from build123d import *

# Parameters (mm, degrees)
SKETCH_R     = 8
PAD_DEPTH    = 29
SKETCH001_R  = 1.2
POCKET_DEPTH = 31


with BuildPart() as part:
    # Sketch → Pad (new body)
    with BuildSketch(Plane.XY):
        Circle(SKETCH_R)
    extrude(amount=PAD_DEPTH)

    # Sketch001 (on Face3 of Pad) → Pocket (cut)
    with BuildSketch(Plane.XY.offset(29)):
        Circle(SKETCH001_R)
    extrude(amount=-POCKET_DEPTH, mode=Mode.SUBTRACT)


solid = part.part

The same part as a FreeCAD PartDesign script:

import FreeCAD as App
import Part
import Sketcher

doc = App.newDocument("Part")
body = doc.addObject("PartDesign::Body", "Body")

sketch1 = body.newObject("Sketcher::SketchObject", "Sketch")
sketch1.AttachmentSupport = (doc.getObject("XY_Plane"), [""])
sketch1.MapMode = "FlatFace"
sketch1.addGeometry(Part.Circle(App.Vector(0, 0, 0), App.Vector(0, 0, 1), 8), False)
sketch1.addConstraint([
    Sketcher.Constraint("Coincident", 0, 3, -1, 1),
    Sketcher.Constraint("Diameter", 0, 16.0),
])
pad1 = body.newObject("PartDesign::Pad", "Pad")
pad1.Profile = sketch1
pad1.Length = 29

sketch2 = body.newObject("Sketcher::SketchObject", "Sketch001")
sketch2.AttachmentSupport = (doc.getObject("XY_Plane"), [""])
sketch2.MapMode = "FlatFace"
sketch2.AttachmentOffset = App.Placement(App.Vector(0, 0, 29), App.Rotation())
sketch2.addGeometry(Part.Circle(App.Vector(0, 0, 0), App.Vector(0, 0, 1), 1.2), False)
sketch2.addConstraint([
    Sketcher.Constraint("Coincident", 0, 3, -1, 1),
    Sketcher.Constraint("Diameter", 0, 2.4),
])
pocket1 = body.newObject("PartDesign::Pocket", "Pocket")
pocket1.Profile = sketch2
pocket1.Length = 31

doc.recompute()
